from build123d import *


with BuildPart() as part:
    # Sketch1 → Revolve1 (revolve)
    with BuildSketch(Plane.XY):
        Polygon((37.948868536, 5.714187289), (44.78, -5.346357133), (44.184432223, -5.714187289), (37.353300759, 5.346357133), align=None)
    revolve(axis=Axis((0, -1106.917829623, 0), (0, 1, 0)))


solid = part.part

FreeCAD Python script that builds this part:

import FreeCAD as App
import Part
import Sketcher
from FreeCAD import Vector
Q = App.Units.Quantity


def add_polygon(sketch, points):
    """Adds a closed chain of lines whose ends are joined by coincident constraints."""
    first, n = sketch.GeometryCount, len(points)
    for a, b in zip(points, points[1:] + points[:1]):
        sketch.addGeometry(Part.LineSegment(App.Vector(*a, 0), App.Vector(*b, 0)), False)
    for i in range(n):
        sketch.addConstraint(Sketcher.Constraint("Coincident", first + i, 2, first + (i + 1) % n, 1))

doc = App.newDocument("Part")
body = doc.addObject("PartDesign::Body", "Body")

# Sketch on XY plane
sketch1 = body.newObject("Sketcher::SketchObject", "Sketch")
sketch1.AttachmentSupport = (doc.getObject("XY_Plane"), [""])
sketch1.MapMode = "FlatFace"
add_polygon(sketch1, [(44.8, -5.3), (37.9, 5.7), (37.4, 5.3), (44.2, -5.7)])  # lines 0-3
sketch1.addConstraint([
    Sketcher.Constraint("Perpendicular", 0, 1),
    Sketcher.Constraint("Perpendicular", 1, 2),
    Sketcher.Constraint("Perpendicular", 2, 3),
    Sketcher.Constraint("Distance", 0, 13.0),
    Sketcher.Constraint("Angle", 0, Q("121.7 deg")),
    Sketcher.Constraint("Distance", 1, 0.7),
    Sketcher.Constraint("DistanceX", -1, 1, 3, 2, 44.78),
    Sketcher.Constraint("DistanceY", -1, 1, 0, 2, 5.714187),
])
revolution = body.newObject("PartDesign::Revolution", "Revolution")
revolution.Profile = sketch1
revolution.ReferenceAxis = (sketch1, ["V_Axis"])
revolution.Angle = 360

doc.recompute()
